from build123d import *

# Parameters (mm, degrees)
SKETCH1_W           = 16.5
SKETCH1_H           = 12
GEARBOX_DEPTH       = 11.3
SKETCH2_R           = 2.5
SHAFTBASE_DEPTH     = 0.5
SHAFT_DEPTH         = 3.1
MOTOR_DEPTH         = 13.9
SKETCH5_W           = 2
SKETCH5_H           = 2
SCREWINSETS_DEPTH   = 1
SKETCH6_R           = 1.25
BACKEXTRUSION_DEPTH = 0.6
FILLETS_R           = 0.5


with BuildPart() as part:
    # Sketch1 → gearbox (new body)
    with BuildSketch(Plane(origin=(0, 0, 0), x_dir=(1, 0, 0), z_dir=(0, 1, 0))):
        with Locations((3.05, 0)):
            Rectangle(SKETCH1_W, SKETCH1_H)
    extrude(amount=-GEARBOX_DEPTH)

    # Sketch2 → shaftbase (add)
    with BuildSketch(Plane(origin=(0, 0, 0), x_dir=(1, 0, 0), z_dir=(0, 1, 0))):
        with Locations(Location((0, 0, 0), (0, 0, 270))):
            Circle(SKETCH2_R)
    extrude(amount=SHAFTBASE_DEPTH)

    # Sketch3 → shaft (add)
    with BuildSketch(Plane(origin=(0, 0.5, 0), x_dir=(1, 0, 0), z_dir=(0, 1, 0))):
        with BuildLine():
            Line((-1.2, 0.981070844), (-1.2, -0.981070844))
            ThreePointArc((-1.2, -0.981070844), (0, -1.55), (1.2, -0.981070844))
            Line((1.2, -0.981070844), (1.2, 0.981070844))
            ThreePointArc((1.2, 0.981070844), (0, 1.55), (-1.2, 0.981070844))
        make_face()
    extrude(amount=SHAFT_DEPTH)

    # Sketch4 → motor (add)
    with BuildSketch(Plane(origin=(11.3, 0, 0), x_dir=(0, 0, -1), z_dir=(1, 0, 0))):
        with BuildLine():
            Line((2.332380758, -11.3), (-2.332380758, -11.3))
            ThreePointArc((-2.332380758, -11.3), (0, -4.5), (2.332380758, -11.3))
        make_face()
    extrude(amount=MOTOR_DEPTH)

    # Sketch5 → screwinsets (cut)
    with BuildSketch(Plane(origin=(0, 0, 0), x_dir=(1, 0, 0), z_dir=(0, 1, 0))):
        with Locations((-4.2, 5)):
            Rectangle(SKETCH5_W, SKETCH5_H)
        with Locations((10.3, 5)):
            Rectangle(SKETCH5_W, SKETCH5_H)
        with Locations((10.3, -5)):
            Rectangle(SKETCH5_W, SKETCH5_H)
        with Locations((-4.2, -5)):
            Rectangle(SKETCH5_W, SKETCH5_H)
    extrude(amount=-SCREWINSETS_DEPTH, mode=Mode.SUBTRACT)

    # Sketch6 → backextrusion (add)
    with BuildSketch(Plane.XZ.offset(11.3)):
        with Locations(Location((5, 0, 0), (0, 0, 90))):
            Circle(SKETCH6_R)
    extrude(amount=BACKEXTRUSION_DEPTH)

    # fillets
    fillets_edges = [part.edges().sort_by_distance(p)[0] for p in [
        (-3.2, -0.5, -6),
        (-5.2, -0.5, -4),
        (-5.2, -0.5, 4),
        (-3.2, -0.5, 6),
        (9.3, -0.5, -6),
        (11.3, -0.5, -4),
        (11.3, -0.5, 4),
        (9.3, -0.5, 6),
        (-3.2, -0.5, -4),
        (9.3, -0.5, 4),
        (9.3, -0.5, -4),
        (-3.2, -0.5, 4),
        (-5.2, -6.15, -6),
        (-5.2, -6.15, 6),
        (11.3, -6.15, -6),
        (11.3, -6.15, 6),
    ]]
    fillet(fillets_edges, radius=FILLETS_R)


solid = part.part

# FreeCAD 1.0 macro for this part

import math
import FreeCAD as App
import Part
import Sketcher
from FreeCAD import Vector


def edges_at(feature, points):
    """Names of the edges that pass closest to the given points."""
    edges = feature.Shape.Edges
    near = lambda p: min(range(len(edges)), key=lambda i: edges[i].distToShape(Part.Vertex(*p))[0])
    return sorted({f"Edge{near(p) + 1}" for p in points})

doc = App.newDocument("Part")
params = doc.addObject("Spreadsheet::Sheet", "Params")
for row, (alias, value) in enumerate([
    ("sketch1_height", "12 mm"),
    ("sketch1_width", "16.5 mm"),
    ("pad1_length", "11.3 mm"),
    ("sketch2_diameter", "5 mm"),
    ("pad2_length", "0.5 mm"),
    ("sketch3_radius", "1.55 mm"),
    ("pad3_length", "3.1 mm"),
    ("sketch4_radius", "3.8 mm"),
    ("pad4_length", "13.9 mm"),
    ("sketch5_width", "2 mm"),
    ("pocket1_length", "1 mm"),
    ("sketch6_diameter", "2.5 mm"),
    ("pad5_length", "0.6 mm"),
    ("fillet_radius", "0.5 mm"),
], start=1):
    params.set(f"A{row}", alias)
    params.set(f"B{row}", "=" + value)
    params.setAlias(f"B{row}", alias)

body = doc.addObject("PartDesign::Body", "Body")

sketch1 = doc.addObject("Sketcher::SketchObject", "Sketch")
body.addObject(sketch1)
sketch1.AttachmentSupport = (doc.XZ_Plane, [""])
sketch1.MapMode = "FlatFace"
sketch1.addGeometry([
    Part.LineSegment(Vector(-5.2, -6, 0), Vector(-5.2, 6, 0)),
    Part.LineSegment(Vector(-5.2, 6, 0), Vector(11.3, 6, 0)),
    Part.LineSegment(Vector(11.3, 6, 0), Vector(11.3, -6, 0)),
    Part.LineSegment(Vector(11.3, -6, 0), Vector(-5.2, -6, 0)),
], False)
sketch1.addConstraint([
    Sketcher.Constraint("Coincident", 0, 2, 1, 1),
    Sketcher.Constraint("Coincident", 1, 2, 2, 1),
    Sketcher.Constraint("Coincident", 2, 2, 3, 1),
    Sketcher.Constraint("Coincident", 3, 2, 0, 1),
    Sketcher.Constraint("Vertical", 0),
    Sketcher.Constraint("Horizontal", 1),
    Sketcher.Constraint("Vertical", 2),
    Sketcher.Constraint("Horizontal", 3),
    Sketcher.Constraint("DistanceY", 0, 1, 0, 2, 12.0),
    Sketcher.Constraint("DistanceX", 1, 1, 1, 2, 16.5),
    Sketcher.Constraint("DistanceY", -1, 1, 0, 2, 6.0),
    Sketcher.Constraint("DistanceX", 0, 2, -1, 1, 5.2),
])
sketch1.setExpression("Constraints[8]", "Params.sketch1_height")
sketch1.setExpression("Constraints[9]", "Params.sketch1_width")
pad1 = doc.addObject("PartDesign::Pad", "Pad")
body.addObject(pad1)
pad1.Profile = sketch1
pad1.setExpression("Length", "Params.pad1_length")

sketch2 = doc.addObject("Sketcher::SketchObject", "Sketch001")
body.addObject(sketch2)
sketch2.AttachmentSupport = (doc.XZ_Plane, [""])
sketch2.MapMode = "FlatFace"
sketch2.addGeometry(Part.Circle(Vector(0, 0, 0), Vector(0, 0, 1), 2.5), False)
sketch2.addConstraint([
    Sketcher.Constraint("Coincident", 0, 3, -1, 1),
    Sketcher.Constraint("Diameter", 0, 5.0),
])
sketch2.setExpression("Constraints[1]", "Params.sketch2_diameter")
pad2 = doc.addObject("PartDesign::Pad", "Pad001")
body.addObject(pad2)
pad2.Profile = sketch2
pad2.setExpression("Length", "Params.pad2_length")
pad2.Reversed = True

sketch3 = doc.addObject("Sketcher::SketchObject", "Sketch002")
body.addObject(sketch3)
sketch3.AttachmentSupport = (doc.XZ_Plane, [""])
sketch3.MapMode = "FlatFace"
sketch3.AttachmentOffset = App.Placement(Vector(0, 0, -0.5), App.Rotation())
sketch3.addGeometry([
    Part.LineSegment(Vector(-1.2, -0.981071, 0), Vector(-1.2, 0.981071, 0)),
    Part.ArcOfCircle(Part.Circle(Vector(0, 0, 0), Vector(0, 0, 1), 1.55), math.radians(39.268026), math.radians(140.731974)),
    Part.LineSegment(Vector(1.2, 0.981071, 0), Vector(1.2, -0.981071, 0)),
    Part.ArcOfCircle(Part.Circle(Vector(0, 0, 0), Vector(0, 0, 1), 1.55), math.radians(-140.731974), math.radians(-39.268026)),
], False)
sketch3.addConstraint([
    Sketcher.Constraint("Coincident", 0, 2, 1, 2),
    Sketcher.Constraint("Coincident", 1, 1, 2, 1),
    Sketcher.Constraint("Coincident", 2, 2, 3, 2),
    Sketcher.Constraint("Coincident", 3, 1, 0, 1),
    Sketcher.Constraint("Vertical", 0),
    Sketcher.Constraint("Vertical", 2),
    Sketcher.Constraint("Coincident", 1, 3, -1, 1),
    Sketcher.Constraint("Coincident", 3, 3, -1, 1),
    Sketcher.Constraint("Equal", 1, 3),
    Sketcher.Constraint("Horizontal", 0, 2, 1, 1),
    Sketcher.Constraint("Radius", 1, 1.55),
    Sketcher.Constraint("DistanceX", 0, 2, -1, 1, 1.2),
])
sketch3.setExpression("Constraints[10]", "Params.sketch3_radius")
pad3 = doc.addObject("PartDesign::Pad", "Pad002")
body.addObject(pad3)
pad3.Profile = sketch3
pad3.setExpression("Length", "Params.pad3_length")
pad3.Reversed = True

sketch4 = doc.addObject("Sketcher::SketchObject", "Sketch003")
body.addObject(sketch4)
sketch4.AttachmentSupport = (doc.YZ_Plane, [""])
sketch4.MapMode = "FlatFace"
sketch4.AttachmentOffset = App.Placement(Vector(0, 0, 11.3), App.Rotation())
sketch4.addGeometry([
    Part.LineSegment(Vector(-11.3, 2.332381, 0), Vector(-11.3, -2.332381, 0)),
    Part.ArcOfCircle(Part.Circle(Vector(-8.3, 0, 0), Vector(0, 0, 1), 3.8), math.radians(-142.136354), math.radians(142.136354)),
], False)
sketch4.addConstraint([
    Sketcher.Constraint("Coincident", 0, 1, 1, 2),
    Sketcher.Constraint("Coincident", 1, 1, 0, 2),
    Sketcher.Constraint("Vertical", 0),
    Sketcher.Constraint("PointOnObject", 1, 3, -1),
    Sketcher.Constraint("Radius", 1, 3.8),
    Sketcher.Constraint("DistanceX", 0, 1, 1, 3, 3.0),
    Sketcher.Constraint("DistanceX", 1, 3, -1, 1, 8.3),
])
sketch4.setExpression("Constraints[4]", "Params.sketch4_radius")
pad4 = doc.addObject("PartDesign::Pad", "Pad003")
body.addObject(pad4)
pad4.Profile = sketch4
pad4.setExpression("Length", "Params.pad4_length")

sketch5 = doc.addObject("Sketcher::SketchObject", "Sketch004")
body.addObject(sketch5)
sketch5.AttachmentSupport = (doc.XZ_Plane, [""])
sketch5.MapMode = "FlatFace"
sketch5.addGeometry([
    Part.LineSegment(Vector(-5.2, -6, 0), Vector(-5.2, -4, 0)),
    Part.LineSegment(Vector(-5.2, -4, 0), Vector(-3.2, -4, 0)),
    Part.LineSegment(Vector(-3.2, -4, 0), Vector(-3.2, -6, 0)),
    Part.LineSegment(Vector(-3.2, -6, 0), Vector(-5.2, -6, 0)),
    Part.LineSegment(Vector(9.3, -6, 0), Vector(9.3, -4, 0)),
    Part.LineSegment(Vector(9.3, -4, 0), Vector(11.3, -4, 0)),
    Part.LineSegment(Vector(11.3, -4, 0), Vector(11.3, -6, 0)),
    Part.LineSegment(Vector(11.3, -6, 0), Vector(9.3, -6, 0)),
    Part.LineSegment(Vector(9.3, 4, 0), Vector(9.3, 6, 0)),
    Part.LineSegment(Vector(9.3, 6, 0), Vector(11.3, 6, 0)),
    Part.LineSegment(Vector(11.3, 6, 0), Vector(11.3, 4, 0)),
    Part.LineSegment(Vector(11.3, 4, 0), Vector(9.3, 4, 0)),
    Part.LineSegment(Vector(-5.2, 4, 0), Vector(-5.2, 6, 0)),
    Part.LineSegment(Vector(-5.2, 6, 0), Vector(-3.2, 6, 0)),
    Part.LineSegment(Vector(-3.2, 6, 0), Vector(-3.2, 4, 0)),
    Part.LineSegment(Vector(-3.2, 4, 0), Vector(-5.2, 4, 0)),
], False)
sketch5.addConstraint([
    Sketcher.Constraint("Coincident", 0, 2, 1, 1),
    Sketcher.Constraint("Coincident", 1, 2, 2, 1),
    Sketcher.Constraint("Coincident", 2, 2, 3, 1),
    Sketcher.Constraint("Coincident", 3, 2, 0, 1),
    Sketcher.Constraint("Coincident", 4, 2, 5, 1),
    Sketcher.Constraint("Coincident", 5, 2, 6, 1),
    Sketcher.Constraint("Coincident", 6, 2, 7, 1),
    Sketcher.Constraint("Coincident", 7, 2, 4, 1),
    Sketcher.Constraint("Coincident", 8, 2, 9, 1),
    Sketcher.Constraint("Coincident", 9, 2, 10, 1),
    Sketcher.Constraint("Coincident", 10, 2, 11, 1),
    Sketcher.Constraint("Coincident", 11, 2, 8, 1),
    Sketcher.Constraint("Coincident", 12, 2, 13, 1),
    Sketcher.Constraint("Coincident", 13, 2, 14, 1),
    Sketcher.Constraint("Coincident", 14, 2, 15, 1),
    Sketcher.Constraint("Coincident", 15, 2, 12, 1),
    Sketcher.Constraint("Vertical", 0),
    Sketcher.Constraint("Horizontal", 1),
    Sketcher.Constraint("Vertical", 2),
    Sketcher.Constraint("Horizontal", 3),
    Sketcher.Constraint("Vertical", 4),
    Sketcher.Constraint("Horizontal", 5),
    Sketcher.Constraint("Vertical", 6),
    Sketcher.Constraint("Horizontal", 7),
    Sketcher.Constraint("Vertical", 8),
    Sketcher.Constraint("Horizontal", 9),
    Sketcher.Constraint("Vertical", 10),
    Sketcher.Constraint("Horizontal", 11),
    Sketcher.Constraint("Vertical", 12),
    Sketcher.Constraint("Horizontal", 13),
    Sketcher.Constraint("Vertical", 14),
    Sketcher.Constraint("Horizontal", 15),
    Sketcher.Constraint("Symmetric", 7, 2, 8, 2, -1),
    Sketcher.Constraint("Symmetric", 5, 2, 10, 2, -1),
    Sketcher.Constraint("Symmetric", 3, 2, 12, 2, -1),
    Sketcher.Constraint("Symmetric", 1, 2, 14, 2, -1),
    Sketcher.Constraint("Horizontal", 1, 2, 4, 2),
    Sketcher.Constraint("Horizontal", 3, 2, 6, 2),
    Sketcher.Constraint("Equal", 3, 5),
    Sketcher.Constraint("Equal", 15, 0),
    Sketcher.Constraint("DistanceX", 1, 1, 1, 2, 2.0),
    Sketcher.Constraint("DistanceY", 0, 2, -1, 1, 4.0),
    Sketcher.Constraint("DistanceX", 0, 2, -1, 1, 5.2),
    Sketcher.Constraint("DistanceX", -1, 1, 4, 2, 9.3),
])
sketch5.setExpression("Constraints[40]", "Params.sketch5_width")
pocket1 = doc.addObject("PartDesign::Pocket", "Pocket")
body.addObject(pocket1)
pocket1.Profile = sketch5
pocket1.setExpression("Length", "Params.pocket1_length")
pocket1.Reversed = True

sketch6 = doc.addObject("Sketcher::SketchObject", "Sketch005")
body.addObject(sketch6)
sketch6.AttachmentSupport = (doc.XZ_Plane, [""])
sketch6.MapMode = "FlatFace"
sketch6.AttachmentOffset = App.Placement(Vector(0, 0, 11.3), App.Rotation())
sketch6.addGeometry(Part.Circle(Vector(5, 0, 0), Vector(0, 0, 1), 1.25), False)
sketch6.addConstraint([
    Sketcher.Constraint("PointOnObject", 0, 3, -1),
    Sketcher.Constraint("Diameter", 0, 2.5),
    Sketcher.Constraint("DistanceX", -1, 1, 0, 3, 5.0),
])
sketch6.setExpression("Constraints[1]", "Params.sketch6_diameter")
pad5 = doc.addObject("PartDesign::Pad", "Pad004")
body.addObject(pad5)
pad5.Profile = sketch6
pad5.setExpression("Length", "Params.pad5_length")
doc.recompute()

fillet = doc.addObject("PartDesign::Fillet", "Fillet")
body.addObject(fillet)
fillet.Base = (pad5, edges_at(pad5, [
    (-3.2, -0.5, -6),
    (-5.2, -0.5, -4),
    (-5.2, -0.5, 4),
    (-3.2, -0.5, 6),
    (9.3, -0.5, -6),
    (11.3, -0.5, -4),
    (11.3, -0.5, 4),
    (9.3, -0.5, 6),
    (-3.2, -0.5, -4),
    (9.3, -0.5, 4),
    (9.3, -0.5, -4),
    (-3.2, -0.5, 4),
    (-5.2, -6.15, -6),
    (-5.2, -6.15, 6),
    (11.3, -6.15, -6),
    (11.3, -6.15, 6),
]))
fillet.setExpression("Radius", "Params.fillet_radius")

doc.recompute()
